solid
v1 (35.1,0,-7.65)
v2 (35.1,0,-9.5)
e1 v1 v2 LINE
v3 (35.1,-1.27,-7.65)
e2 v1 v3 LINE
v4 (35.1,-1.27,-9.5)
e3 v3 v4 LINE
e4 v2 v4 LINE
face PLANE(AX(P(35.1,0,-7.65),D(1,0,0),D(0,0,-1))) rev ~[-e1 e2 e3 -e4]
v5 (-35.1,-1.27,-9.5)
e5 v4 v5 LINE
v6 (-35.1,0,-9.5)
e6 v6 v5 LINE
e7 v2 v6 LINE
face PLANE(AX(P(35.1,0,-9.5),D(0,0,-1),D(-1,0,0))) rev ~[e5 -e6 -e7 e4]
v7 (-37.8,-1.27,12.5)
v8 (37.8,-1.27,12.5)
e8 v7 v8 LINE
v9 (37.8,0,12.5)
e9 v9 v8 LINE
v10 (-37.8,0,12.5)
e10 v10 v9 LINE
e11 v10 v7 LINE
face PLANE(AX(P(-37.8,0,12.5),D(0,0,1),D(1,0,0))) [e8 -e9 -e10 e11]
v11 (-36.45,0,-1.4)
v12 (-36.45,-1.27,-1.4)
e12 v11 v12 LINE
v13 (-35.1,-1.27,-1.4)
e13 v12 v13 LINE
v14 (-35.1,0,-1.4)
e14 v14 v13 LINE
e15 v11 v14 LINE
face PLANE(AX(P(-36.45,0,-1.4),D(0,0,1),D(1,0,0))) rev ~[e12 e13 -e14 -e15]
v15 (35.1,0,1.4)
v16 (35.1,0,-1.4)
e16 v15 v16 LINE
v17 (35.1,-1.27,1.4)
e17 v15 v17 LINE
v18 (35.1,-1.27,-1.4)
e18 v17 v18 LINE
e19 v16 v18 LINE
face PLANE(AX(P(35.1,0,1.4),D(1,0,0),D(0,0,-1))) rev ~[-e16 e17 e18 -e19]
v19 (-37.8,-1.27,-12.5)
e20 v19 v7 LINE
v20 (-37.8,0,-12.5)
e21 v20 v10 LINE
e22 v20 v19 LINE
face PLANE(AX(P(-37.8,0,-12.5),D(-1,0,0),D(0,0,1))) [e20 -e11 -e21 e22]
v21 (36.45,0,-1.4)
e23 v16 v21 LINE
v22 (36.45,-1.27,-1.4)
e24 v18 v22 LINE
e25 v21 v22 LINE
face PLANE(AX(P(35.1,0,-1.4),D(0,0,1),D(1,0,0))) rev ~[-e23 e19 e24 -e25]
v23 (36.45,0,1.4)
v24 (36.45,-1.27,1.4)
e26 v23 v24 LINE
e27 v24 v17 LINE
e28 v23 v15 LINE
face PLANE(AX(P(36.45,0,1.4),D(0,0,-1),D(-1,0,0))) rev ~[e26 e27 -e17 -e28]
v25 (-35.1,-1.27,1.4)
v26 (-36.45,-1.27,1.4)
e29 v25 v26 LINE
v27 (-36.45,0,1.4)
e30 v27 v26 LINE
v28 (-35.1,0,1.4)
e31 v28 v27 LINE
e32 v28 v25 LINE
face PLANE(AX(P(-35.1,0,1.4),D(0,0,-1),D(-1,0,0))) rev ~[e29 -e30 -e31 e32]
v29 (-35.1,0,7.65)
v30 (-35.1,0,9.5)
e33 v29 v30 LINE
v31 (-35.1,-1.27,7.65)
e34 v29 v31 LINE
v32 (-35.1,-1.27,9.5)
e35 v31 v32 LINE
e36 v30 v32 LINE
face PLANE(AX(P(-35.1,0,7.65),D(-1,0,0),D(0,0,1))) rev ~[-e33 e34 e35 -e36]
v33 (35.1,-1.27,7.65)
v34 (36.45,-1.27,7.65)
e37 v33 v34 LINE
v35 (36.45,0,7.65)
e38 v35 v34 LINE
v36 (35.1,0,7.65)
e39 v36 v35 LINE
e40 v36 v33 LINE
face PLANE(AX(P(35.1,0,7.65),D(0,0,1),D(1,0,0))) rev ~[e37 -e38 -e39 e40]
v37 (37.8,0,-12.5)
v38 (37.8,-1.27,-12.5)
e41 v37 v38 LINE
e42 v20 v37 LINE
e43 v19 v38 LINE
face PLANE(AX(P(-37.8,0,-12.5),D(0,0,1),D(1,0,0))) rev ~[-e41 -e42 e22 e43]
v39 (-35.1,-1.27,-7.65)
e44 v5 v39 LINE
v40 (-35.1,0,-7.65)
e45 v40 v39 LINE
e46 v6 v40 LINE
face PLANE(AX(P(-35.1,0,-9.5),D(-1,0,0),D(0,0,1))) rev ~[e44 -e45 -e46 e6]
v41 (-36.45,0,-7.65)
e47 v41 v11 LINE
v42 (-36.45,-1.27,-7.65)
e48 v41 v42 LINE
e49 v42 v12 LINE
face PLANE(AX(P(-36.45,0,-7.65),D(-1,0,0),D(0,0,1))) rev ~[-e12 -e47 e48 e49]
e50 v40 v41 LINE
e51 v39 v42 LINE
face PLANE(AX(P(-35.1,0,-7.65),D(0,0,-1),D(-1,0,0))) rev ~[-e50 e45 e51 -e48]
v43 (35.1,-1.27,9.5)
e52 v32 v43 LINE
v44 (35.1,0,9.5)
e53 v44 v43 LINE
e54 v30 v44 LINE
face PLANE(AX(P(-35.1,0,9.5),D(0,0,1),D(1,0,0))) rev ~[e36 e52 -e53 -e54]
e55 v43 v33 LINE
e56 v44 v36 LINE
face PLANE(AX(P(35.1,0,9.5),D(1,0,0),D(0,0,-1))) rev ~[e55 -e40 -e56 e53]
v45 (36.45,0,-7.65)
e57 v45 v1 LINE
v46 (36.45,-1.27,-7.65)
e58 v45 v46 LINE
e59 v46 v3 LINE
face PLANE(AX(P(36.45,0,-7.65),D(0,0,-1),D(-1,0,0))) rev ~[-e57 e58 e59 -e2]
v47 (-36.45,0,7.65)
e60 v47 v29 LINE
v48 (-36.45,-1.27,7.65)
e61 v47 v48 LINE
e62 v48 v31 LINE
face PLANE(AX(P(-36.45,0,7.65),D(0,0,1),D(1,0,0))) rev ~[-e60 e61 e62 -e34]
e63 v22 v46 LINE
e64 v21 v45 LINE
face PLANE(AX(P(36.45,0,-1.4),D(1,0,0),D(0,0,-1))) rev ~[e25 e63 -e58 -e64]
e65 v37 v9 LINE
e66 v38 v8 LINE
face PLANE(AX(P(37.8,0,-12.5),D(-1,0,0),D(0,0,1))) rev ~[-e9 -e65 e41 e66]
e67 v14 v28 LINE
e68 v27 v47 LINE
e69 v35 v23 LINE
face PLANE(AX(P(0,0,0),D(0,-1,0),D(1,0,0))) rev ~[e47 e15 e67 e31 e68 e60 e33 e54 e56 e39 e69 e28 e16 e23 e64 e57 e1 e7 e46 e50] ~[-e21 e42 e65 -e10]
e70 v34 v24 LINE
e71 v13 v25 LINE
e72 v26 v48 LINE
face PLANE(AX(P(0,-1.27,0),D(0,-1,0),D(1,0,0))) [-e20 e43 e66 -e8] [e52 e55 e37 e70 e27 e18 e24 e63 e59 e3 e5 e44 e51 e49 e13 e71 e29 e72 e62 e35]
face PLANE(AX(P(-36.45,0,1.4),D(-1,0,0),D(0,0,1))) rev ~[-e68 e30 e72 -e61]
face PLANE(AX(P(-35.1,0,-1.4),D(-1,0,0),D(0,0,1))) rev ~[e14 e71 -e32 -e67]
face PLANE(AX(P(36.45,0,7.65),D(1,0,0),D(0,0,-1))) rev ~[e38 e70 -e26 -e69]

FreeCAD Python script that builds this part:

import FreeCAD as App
import Part
import Sketcher
from FreeCAD import Vector

doc = App.newDocument("Part")
params = doc.addObject("Spreadsheet::Sheet", "Params")
for row, (alias, value) in enumerate([
    ("sketch1_height", "25 mm"),
    ("sketch1_width", "75.6 mm"),
    ("sketch1_width2", "70.2 mm"),
    ("sketch1_height2", "2.8 mm"),
    ("sketch1_width3", "1.35 mm"),
    ("pad1_length", "1.27 mm"),
], start=1):
    params.set(f"A{row}", alias)
    params.set(f"B{row}", "=" + value)
    params.setAlias(f"B{row}", alias)

body = doc.addObject("PartDesign::Body", "Body")

# Sketch on XZ plane
sketch1 = body.newObject("Sketcher::SketchObject", "Sketch")
sketch1.AttachmentSupport = (doc.getObject("XZ_Plane"), [""])
sketch1.MapMode = "FlatFace"
sketch1.addGeometry(Part.LineSegment(Vector(-37.8, 12.5, 0), Vector(-37.8, -12.5, 0)), False)
sketch1.addGeometry(Part.LineSegment(Vector(-37.8, -12.5, 0), Vector(37.8, -12.5, 0)), False)
sketch1.addGeometry(Part.LineSegment(Vector(37.8, -12.5, 0), Vector(37.8, 12.5, 0)), False)
sketch1.addGeometry(Part.LineSegment(Vector(37.8, 12.5, 0), Vector(-37.8, 12.5, 0)), False)
sketch1.addGeometry(Part.LineSegment(Vector(36.5, -7.7, 0), Vector(35.1, -7.7, 0)), False)
sketch1.addGeometry(Part.LineSegment(Vector(35.1, -7.7, 0), Vector(35.1, -9.5, 0)), False)
sketch1.addGeometry(Part.LineSegment(Vector(35.1, -9.5, 0), Vector(-35.1, -9.5, 0)), False)
sketch1.addGeometry(Part.LineSegment(Vector(-35.1, -9.5, 0), Vector(-35.1, -7.7, 0)), False)
sketch1.addGeometry(Part.LineSegment(Vector(-35.1, -7.7, 0), Vector(-36.5, -7.7, 0)), False)
sketch1.addGeometry(Part.LineSegment(Vector(-36.5, -7.7, 0), Vector(-36.5, -1.4, 0)), False)
sketch1.addGeometry(Part.LineSegment(Vector(-36.5, -1.4, 0), Vector(-35.1, -1.4, 0)), False)
sketch1.addGeometry(Part.LineSegment(Vector(-35.1, -1.4, 0), Vector(-35.1, 1.4, 0)), False)
sketch1.addGeometry(Part.LineSegment(Vector(-35.1, 1.4, 0), Vector(-36.5, 1.4, 0)), False)
sketch1.addGeometry(Part.LineSegment(Vector(-36.5, 1.4, 0), Vector(-36.5, 7.7, 0)), False)
sketch1.addGeometry(Part.LineSegment(Vector(-36.5, 7.7, 0), Vector(-35.1, 7.7, 0)), False)
sketch1.addGeometry(Part.LineSegment(Vector(-35.1, 7.7, 0), Vector(-35.1, 9.5, 0)), False)
sketch1.addGeometry(Part.LineSegment(Vector(-35.1, 9.5, 0), Vector(35.1, 9.5, 0)), False)
sketch1.addGeometry(Part.LineSegment(Vector(35.1, 9.5, 0), Vector(35.1, 7.7, 0)), False)
sketch1.addGeometry(Part.LineSegment(Vector(35.1, 7.7, 0), Vector(36.5, 7.7, 0)), False)
sketch1.addGeometry(Part.LineSegment(Vector(36.5, 7.7, 0), Vector(36.5, 1.4, 0)), False)
sketch1.addGeometry(Part.LineSegment(Vector(36.5, 1.4, 0), Vector(35.1, 1.4, 0)), False)
sketch1.addGeometry(Part.LineSegment(Vector(35.1, 1.4, 0), Vector(35.1, -1.4, 0)), False)
sketch1.addGeometry(Part.LineSegment(Vector(35.1, -1.4, 0), Vector(36.5, -1.4, 0)), False)
sketch1.addGeometry(Part.LineSegment(Vector(36.5, -1.4, 0), Vector(36.5, -7.7, 0)), False)
sketch1.addConstraint(Sketcher.Constraint("Coincident", 0, 2, 1, 1))
sketch1.addConstraint(Sketcher.Constraint("Coincident", 1, 2, 2, 1))
sketch1.addConstraint(Sketcher.Constraint("Coincident", 2, 2, 3, 1))
sketch1.addConstraint(Sketcher.Constraint("Coincident", 3, 2, 0, 1))
sketch1.addConstraint(Sketcher.Constraint("Coincident", 4, 2, 5, 1))
sketch1.addConstraint(Sketcher.Constraint("Coincident", 5, 2, 6, 1))
sketch1.addConstraint(Sketcher.Constraint("Coincident", 6, 2, 7, 1))
sketch1.addConstraint(Sketcher.Constraint("Coincident", 7, 2, 8, 1))
sketch1.addConstraint(Sketcher.Constraint("Coincident", 8, 2, 9, 1))
sketch1.addConstraint(Sketcher.Constraint("Coincident", 9, 2, 10, 1))
sketch1.addConstraint(Sketcher.Constraint("Coincident", 10, 2, 11, 1))
sketch1.addConstraint(Sketcher.Constraint("Coincident", 11, 2, 12, 1))
sketch1.addConstraint(Sketcher.Constraint("Coincident", 12, 2, 13, 1))
sketch1.addConstraint(Sketcher.Constraint("Coincident", 13, 2, 14, 1))
sketch1.addConstraint(Sketcher.Constraint("Coincident", 14, 2, 15, 1))
sketch1.addConstraint(Sketcher.Constraint("Coincident", 15, 2, 16, 1))
sketch1.addConstraint(Sketcher.Constraint("Coincident", 16, 2, 17, 1))
sketch1.addConstraint(Sketcher.Constraint("Coincident", 17, 2, 18, 1))
sketch1.addConstraint(Sketcher.Constraint("Coincident", 18, 2, 19, 1))
sketch1.addConstraint(Sketcher.Constraint("Coincident", 19, 2, 20, 1))
sketch1.addConstraint(Sketcher.Constraint("Coincident", 20, 2, 21, 1))
sketch1.addConstraint(Sketcher.Constraint("Coincident", 21, 2, 22, 1))
sketch1.addConstraint(Sketcher.Constraint("Coincident", 22, 2, 23, 1))
sketch1.addConstraint(Sketcher.Constraint("Coincident", 23, 2, 4, 1))
sketch1.addConstraint(Sketcher.Constraint("Vertical", 0))
sketch1.addConstraint(Sketcher.Constraint("Horizontal", 1))
sketch1.addConstraint(Sketcher.Constraint("Vertical", 2))
sketch1.addConstraint(Sketcher.Constraint("Horizontal", 3))
sketch1.addConstraint(Sketcher.Constraint("Horizontal", 4))
sketch1.addConstraint(Sketcher.Constraint("Vertical", 5))
sketch1.addConstraint(Sketcher.Constraint("Horizontal", 6))
sketch1.addConstraint(Sketcher.Constraint("Vertical", 7))
sketch1.addConstraint(Sketcher.Constraint("Horizontal", 8))
sketch1.addConstraint(Sketcher.Constraint("Vertical", 9))
sketch1.addConstraint(Sketcher.Constraint("Horizontal", 10))
sketch1.addConstraint(Sketcher.Constraint("Vertical", 11))
sketch1.addConstraint(Sketcher.Constraint("Horizontal", 12))
sketch1.addConstraint(Sketcher.Constraint("Vertical", 13))
sketch1.addConstraint(Sketcher.Constraint("Horizontal", 14))
sketch1.addConstraint(Sketcher.Constraint("Vertical", 15))
sketch1.addConstraint(Sketcher.Constraint("Horizontal", 16))
sketch1.addConstraint(Sketcher.Constraint("Vertical", 17))
sketch1.addConstraint(Sketcher.Constraint("Horizontal", 18))
sketch1.addConstraint(Sketcher.Constraint("Vertical", 19))
sketch1.addConstraint(Sketcher.Constraint("Horizontal", 20))
sketch1.addConstraint(Sketcher.Constraint("Vertical", 21))
sketch1.addConstraint(Sketcher.Constraint("Horizontal", 22))
sketch1.addConstraint(Sketcher.Constraint("Vertical", 23))
sketch1.addConstraint(Sketcher.Constraint("Symmetric", 0, 2, 2, 2, -1, 1))
sketch1.addConstraint(Sketcher.Constraint("Symmetric", 4, 2, 14, 2, -1, 1))
sketch1.addConstraint(Sketcher.Constraint("Symmetric", 6, 2, 16, 2, -1, 1))
sketch1.addConstraint(Sketcher.Constraint("Symmetric", 8, 2, 18, 2, -1, 1))
sketch1.addConstraint(Sketcher.Constraint("Symmetric", 10, 2, 20, 2, -1, 1))
sketch1.addConstraint(Sketcher.Constraint("Symmetric", 12, 2, 22, 2, -1, 1))
sketch1.addConstraint(Sketcher.Constraint("Symmetric", 4, 2, 7, 2, -2))
sketch1.addConstraint(Sketcher.Constraint("Symmetric", 12, 2, 19, 2, -2))
sketch1.addConstraint(Sketcher.Constraint("Vertical", 7, 2, 10, 2))
sketch1.addConstraint(Sketcher.Constraint("DistanceY", 0, 2, 0, 1, 25.0))
sketch1.addConstraint(Sketcher.Constraint("DistanceX", 1, 1, 1, 2, 75.6))
sketch1.addConstraint(Sketcher.Constraint("DistanceX", 6, 2, 6, 1, 70.2))
sketch1.addConstraint(Sketcher.Constraint("DistanceY", 11, 1, 11, 2, 2.8))
sketch1.addConstraint(Sketcher.Constraint("DistanceY", 1, 2, 5, 2, 3.0))
sketch1.addConstraint(Sketcher.Constraint("DistanceX", 4, 2, 4, 1, 1.35))
sketch1.addConstraint(Sketcher.Constraint("DistanceY", 5, 2, 5, 1, 1.85))
sketch1.setExpression("Constraints[57]", "Params.sketch1_height")
sketch1.setExpression("Constraints[58]", "Params.sketch1_width")
sketch1.setExpression("Constraints[59]", "Params.sketch1_width2")
sketch1.setExpression("Constraints[60]", "Params.sketch1_height2")
sketch1.setExpression("Constraints[62]", "Params.sketch1_width3")
pad1 = body.newObject("PartDesign::Pad", "Pad")
pad1.Profile = sketch1
pad1.setExpression("Length", "Params.pad1_length")

doc.recompute()
